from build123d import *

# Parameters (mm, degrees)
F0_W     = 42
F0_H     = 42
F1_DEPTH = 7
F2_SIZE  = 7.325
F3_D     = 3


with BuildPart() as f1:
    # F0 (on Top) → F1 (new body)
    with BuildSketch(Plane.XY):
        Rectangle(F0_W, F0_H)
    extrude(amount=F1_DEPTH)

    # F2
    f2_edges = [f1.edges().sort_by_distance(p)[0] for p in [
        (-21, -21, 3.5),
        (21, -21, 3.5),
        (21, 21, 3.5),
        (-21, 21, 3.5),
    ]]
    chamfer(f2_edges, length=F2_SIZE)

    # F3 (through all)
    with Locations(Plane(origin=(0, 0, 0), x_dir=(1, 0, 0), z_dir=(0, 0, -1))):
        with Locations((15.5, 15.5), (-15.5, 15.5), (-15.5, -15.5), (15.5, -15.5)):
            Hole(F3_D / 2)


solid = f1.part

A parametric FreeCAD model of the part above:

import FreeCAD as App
import Part
import Sketcher


def edges_at(feature, points):
    """Names of the edges that pass closest to the given points."""
    edges = feature.Shape.Edges
    near = lambda p: min(range(len(edges)), key=lambda i: edges[i].distToShape(Part.Vertex(*p))[0])
    return sorted({f"Edge{near(p) + 1}" for p in points})


def add_polygon(sketch, points):
    """Adds a closed chain of lines whose ends are joined by coincident constraints."""
    first, n = sketch.GeometryCount, len(points)
    for a, b in zip(points, points[1:] + points[:1]):
        sketch.addGeometry(Part.LineSegment(App.Vector(*a, 0), App.Vector(*b, 0)), False)
    for i in range(n):
        sketch.addConstraint(Sketcher.Constraint("Coincident", first + i, 2, first + (i + 1) % n, 1))

doc = App.newDocument("Part")
body = doc.addObject("PartDesign::Body", "Body")

# Sketch on XY plane
sketch1 = body.newObject("Sketcher::SketchObject", "Sketch")
sketch1.AttachmentSupport = (doc.getObject("XY_Plane"), [""])
sketch1.MapMode = "FlatFace"
add_polygon(sketch1, [(-21, 21), (-21, -21), (21, -21), (21, 21)])  # lines 0-3
sketch1.addConstraint(Sketcher.Constraint("Vertical", 0))
sketch1.addConstraint(Sketcher.Constraint("Horizontal", 1))
sketch1.addConstraint(Sketcher.Constraint("Vertical", 2))
sketch1.addConstraint(Sketcher.Constraint("Horizontal", 3))
sketch1.addConstraint(Sketcher.Constraint("Symmetric", 0, 2, 2, 2, -1, 1))
sketch1.addConstraint(Sketcher.Constraint("Equal", 3, 0))
sketch1.addConstraint(Sketcher.Constraint("DistanceX", 1, 1, 1, 2, 42.0))
pad1 = body.newObject("PartDesign::Pad", "Pad")
pad1.Profile = sketch1
pad1.Length = 7
doc.recompute()

chamfer = body.newObject("PartDesign::Chamfer", "Chamfer")
chamfer.Base = (pad1, edges_at(pad1, [
    (-21, -21, 3.5),
    (21, -21, 3.5),
    (21, 21, 3.5),
    (-21, 21, 3.5),
]))
chamfer.Size = 7.325

# Sketch on XY plane
sketch2 = body.newObject("Sketcher::SketchObject", "Sketch001")
sketch2.AttachmentSupport = (doc.getObject("XY_Plane"), [""])
sketch2.MapMode = "FlatFace"
sketch2.addGeometry(Part.Circle(App.Vector(15.5, -15.5, 0), App.Vector(0, 0, 1), 1.5), False)
sketch2.addGeometry(Part.Circle(App.Vector(-15.5, -15.5, 0), App.Vector(0, 0, 1), 1.5), False)
sketch2.addGeometry(Part.Circle(App.Vector(-15.5, 15.5, 0), App.Vector(0, 0, 1), 1.5), False)
sketch2.addGeometry(Part.Circle(App.Vector(15.5, 15.5, 0), App.Vector(0, 0, 1), 1.5), False)
sketch2.addConstraint(Sketcher.Constraint("Equal", 0, 1))
sketch2.addConstraint(Sketcher.Constraint("Equal", 1, 2))
sketch2.addConstraint(Sketcher.Constraint("Equal", 2, 3))
sketch2.addConstraint(Sketcher.Constraint("Symmetric", 0, 3, 2, 3, -1, 1))
sketch2.addConstraint(Sketcher.Constraint("Symmetric", 1, 3, 3, 3, -1, 1))
sketch2.addConstraint(Sketcher.Constraint("Symmetric", 0, 3, 1, 3, -2))
sketch2.addConstraint(Sketcher.Constraint("Diameter", 0, 3.0))
sketch2.addConstraint(Sketcher.Constraint("DistanceX", 1, 3, 0, 3, 31.0))
sketch2.addConstraint(Sketcher.Constraint("DistanceY", 1, 3, 2, 3, 31.0))
doc.recompute()
hole = body.newObject("PartDesign::Hole", "Hole")
hole.Profile = sketch2
hole.ThreadType = "None"
hole.Diameter = 3
hole.DepthType = "ThroughAll"
hole.Reversed = True

doc.recompute()
